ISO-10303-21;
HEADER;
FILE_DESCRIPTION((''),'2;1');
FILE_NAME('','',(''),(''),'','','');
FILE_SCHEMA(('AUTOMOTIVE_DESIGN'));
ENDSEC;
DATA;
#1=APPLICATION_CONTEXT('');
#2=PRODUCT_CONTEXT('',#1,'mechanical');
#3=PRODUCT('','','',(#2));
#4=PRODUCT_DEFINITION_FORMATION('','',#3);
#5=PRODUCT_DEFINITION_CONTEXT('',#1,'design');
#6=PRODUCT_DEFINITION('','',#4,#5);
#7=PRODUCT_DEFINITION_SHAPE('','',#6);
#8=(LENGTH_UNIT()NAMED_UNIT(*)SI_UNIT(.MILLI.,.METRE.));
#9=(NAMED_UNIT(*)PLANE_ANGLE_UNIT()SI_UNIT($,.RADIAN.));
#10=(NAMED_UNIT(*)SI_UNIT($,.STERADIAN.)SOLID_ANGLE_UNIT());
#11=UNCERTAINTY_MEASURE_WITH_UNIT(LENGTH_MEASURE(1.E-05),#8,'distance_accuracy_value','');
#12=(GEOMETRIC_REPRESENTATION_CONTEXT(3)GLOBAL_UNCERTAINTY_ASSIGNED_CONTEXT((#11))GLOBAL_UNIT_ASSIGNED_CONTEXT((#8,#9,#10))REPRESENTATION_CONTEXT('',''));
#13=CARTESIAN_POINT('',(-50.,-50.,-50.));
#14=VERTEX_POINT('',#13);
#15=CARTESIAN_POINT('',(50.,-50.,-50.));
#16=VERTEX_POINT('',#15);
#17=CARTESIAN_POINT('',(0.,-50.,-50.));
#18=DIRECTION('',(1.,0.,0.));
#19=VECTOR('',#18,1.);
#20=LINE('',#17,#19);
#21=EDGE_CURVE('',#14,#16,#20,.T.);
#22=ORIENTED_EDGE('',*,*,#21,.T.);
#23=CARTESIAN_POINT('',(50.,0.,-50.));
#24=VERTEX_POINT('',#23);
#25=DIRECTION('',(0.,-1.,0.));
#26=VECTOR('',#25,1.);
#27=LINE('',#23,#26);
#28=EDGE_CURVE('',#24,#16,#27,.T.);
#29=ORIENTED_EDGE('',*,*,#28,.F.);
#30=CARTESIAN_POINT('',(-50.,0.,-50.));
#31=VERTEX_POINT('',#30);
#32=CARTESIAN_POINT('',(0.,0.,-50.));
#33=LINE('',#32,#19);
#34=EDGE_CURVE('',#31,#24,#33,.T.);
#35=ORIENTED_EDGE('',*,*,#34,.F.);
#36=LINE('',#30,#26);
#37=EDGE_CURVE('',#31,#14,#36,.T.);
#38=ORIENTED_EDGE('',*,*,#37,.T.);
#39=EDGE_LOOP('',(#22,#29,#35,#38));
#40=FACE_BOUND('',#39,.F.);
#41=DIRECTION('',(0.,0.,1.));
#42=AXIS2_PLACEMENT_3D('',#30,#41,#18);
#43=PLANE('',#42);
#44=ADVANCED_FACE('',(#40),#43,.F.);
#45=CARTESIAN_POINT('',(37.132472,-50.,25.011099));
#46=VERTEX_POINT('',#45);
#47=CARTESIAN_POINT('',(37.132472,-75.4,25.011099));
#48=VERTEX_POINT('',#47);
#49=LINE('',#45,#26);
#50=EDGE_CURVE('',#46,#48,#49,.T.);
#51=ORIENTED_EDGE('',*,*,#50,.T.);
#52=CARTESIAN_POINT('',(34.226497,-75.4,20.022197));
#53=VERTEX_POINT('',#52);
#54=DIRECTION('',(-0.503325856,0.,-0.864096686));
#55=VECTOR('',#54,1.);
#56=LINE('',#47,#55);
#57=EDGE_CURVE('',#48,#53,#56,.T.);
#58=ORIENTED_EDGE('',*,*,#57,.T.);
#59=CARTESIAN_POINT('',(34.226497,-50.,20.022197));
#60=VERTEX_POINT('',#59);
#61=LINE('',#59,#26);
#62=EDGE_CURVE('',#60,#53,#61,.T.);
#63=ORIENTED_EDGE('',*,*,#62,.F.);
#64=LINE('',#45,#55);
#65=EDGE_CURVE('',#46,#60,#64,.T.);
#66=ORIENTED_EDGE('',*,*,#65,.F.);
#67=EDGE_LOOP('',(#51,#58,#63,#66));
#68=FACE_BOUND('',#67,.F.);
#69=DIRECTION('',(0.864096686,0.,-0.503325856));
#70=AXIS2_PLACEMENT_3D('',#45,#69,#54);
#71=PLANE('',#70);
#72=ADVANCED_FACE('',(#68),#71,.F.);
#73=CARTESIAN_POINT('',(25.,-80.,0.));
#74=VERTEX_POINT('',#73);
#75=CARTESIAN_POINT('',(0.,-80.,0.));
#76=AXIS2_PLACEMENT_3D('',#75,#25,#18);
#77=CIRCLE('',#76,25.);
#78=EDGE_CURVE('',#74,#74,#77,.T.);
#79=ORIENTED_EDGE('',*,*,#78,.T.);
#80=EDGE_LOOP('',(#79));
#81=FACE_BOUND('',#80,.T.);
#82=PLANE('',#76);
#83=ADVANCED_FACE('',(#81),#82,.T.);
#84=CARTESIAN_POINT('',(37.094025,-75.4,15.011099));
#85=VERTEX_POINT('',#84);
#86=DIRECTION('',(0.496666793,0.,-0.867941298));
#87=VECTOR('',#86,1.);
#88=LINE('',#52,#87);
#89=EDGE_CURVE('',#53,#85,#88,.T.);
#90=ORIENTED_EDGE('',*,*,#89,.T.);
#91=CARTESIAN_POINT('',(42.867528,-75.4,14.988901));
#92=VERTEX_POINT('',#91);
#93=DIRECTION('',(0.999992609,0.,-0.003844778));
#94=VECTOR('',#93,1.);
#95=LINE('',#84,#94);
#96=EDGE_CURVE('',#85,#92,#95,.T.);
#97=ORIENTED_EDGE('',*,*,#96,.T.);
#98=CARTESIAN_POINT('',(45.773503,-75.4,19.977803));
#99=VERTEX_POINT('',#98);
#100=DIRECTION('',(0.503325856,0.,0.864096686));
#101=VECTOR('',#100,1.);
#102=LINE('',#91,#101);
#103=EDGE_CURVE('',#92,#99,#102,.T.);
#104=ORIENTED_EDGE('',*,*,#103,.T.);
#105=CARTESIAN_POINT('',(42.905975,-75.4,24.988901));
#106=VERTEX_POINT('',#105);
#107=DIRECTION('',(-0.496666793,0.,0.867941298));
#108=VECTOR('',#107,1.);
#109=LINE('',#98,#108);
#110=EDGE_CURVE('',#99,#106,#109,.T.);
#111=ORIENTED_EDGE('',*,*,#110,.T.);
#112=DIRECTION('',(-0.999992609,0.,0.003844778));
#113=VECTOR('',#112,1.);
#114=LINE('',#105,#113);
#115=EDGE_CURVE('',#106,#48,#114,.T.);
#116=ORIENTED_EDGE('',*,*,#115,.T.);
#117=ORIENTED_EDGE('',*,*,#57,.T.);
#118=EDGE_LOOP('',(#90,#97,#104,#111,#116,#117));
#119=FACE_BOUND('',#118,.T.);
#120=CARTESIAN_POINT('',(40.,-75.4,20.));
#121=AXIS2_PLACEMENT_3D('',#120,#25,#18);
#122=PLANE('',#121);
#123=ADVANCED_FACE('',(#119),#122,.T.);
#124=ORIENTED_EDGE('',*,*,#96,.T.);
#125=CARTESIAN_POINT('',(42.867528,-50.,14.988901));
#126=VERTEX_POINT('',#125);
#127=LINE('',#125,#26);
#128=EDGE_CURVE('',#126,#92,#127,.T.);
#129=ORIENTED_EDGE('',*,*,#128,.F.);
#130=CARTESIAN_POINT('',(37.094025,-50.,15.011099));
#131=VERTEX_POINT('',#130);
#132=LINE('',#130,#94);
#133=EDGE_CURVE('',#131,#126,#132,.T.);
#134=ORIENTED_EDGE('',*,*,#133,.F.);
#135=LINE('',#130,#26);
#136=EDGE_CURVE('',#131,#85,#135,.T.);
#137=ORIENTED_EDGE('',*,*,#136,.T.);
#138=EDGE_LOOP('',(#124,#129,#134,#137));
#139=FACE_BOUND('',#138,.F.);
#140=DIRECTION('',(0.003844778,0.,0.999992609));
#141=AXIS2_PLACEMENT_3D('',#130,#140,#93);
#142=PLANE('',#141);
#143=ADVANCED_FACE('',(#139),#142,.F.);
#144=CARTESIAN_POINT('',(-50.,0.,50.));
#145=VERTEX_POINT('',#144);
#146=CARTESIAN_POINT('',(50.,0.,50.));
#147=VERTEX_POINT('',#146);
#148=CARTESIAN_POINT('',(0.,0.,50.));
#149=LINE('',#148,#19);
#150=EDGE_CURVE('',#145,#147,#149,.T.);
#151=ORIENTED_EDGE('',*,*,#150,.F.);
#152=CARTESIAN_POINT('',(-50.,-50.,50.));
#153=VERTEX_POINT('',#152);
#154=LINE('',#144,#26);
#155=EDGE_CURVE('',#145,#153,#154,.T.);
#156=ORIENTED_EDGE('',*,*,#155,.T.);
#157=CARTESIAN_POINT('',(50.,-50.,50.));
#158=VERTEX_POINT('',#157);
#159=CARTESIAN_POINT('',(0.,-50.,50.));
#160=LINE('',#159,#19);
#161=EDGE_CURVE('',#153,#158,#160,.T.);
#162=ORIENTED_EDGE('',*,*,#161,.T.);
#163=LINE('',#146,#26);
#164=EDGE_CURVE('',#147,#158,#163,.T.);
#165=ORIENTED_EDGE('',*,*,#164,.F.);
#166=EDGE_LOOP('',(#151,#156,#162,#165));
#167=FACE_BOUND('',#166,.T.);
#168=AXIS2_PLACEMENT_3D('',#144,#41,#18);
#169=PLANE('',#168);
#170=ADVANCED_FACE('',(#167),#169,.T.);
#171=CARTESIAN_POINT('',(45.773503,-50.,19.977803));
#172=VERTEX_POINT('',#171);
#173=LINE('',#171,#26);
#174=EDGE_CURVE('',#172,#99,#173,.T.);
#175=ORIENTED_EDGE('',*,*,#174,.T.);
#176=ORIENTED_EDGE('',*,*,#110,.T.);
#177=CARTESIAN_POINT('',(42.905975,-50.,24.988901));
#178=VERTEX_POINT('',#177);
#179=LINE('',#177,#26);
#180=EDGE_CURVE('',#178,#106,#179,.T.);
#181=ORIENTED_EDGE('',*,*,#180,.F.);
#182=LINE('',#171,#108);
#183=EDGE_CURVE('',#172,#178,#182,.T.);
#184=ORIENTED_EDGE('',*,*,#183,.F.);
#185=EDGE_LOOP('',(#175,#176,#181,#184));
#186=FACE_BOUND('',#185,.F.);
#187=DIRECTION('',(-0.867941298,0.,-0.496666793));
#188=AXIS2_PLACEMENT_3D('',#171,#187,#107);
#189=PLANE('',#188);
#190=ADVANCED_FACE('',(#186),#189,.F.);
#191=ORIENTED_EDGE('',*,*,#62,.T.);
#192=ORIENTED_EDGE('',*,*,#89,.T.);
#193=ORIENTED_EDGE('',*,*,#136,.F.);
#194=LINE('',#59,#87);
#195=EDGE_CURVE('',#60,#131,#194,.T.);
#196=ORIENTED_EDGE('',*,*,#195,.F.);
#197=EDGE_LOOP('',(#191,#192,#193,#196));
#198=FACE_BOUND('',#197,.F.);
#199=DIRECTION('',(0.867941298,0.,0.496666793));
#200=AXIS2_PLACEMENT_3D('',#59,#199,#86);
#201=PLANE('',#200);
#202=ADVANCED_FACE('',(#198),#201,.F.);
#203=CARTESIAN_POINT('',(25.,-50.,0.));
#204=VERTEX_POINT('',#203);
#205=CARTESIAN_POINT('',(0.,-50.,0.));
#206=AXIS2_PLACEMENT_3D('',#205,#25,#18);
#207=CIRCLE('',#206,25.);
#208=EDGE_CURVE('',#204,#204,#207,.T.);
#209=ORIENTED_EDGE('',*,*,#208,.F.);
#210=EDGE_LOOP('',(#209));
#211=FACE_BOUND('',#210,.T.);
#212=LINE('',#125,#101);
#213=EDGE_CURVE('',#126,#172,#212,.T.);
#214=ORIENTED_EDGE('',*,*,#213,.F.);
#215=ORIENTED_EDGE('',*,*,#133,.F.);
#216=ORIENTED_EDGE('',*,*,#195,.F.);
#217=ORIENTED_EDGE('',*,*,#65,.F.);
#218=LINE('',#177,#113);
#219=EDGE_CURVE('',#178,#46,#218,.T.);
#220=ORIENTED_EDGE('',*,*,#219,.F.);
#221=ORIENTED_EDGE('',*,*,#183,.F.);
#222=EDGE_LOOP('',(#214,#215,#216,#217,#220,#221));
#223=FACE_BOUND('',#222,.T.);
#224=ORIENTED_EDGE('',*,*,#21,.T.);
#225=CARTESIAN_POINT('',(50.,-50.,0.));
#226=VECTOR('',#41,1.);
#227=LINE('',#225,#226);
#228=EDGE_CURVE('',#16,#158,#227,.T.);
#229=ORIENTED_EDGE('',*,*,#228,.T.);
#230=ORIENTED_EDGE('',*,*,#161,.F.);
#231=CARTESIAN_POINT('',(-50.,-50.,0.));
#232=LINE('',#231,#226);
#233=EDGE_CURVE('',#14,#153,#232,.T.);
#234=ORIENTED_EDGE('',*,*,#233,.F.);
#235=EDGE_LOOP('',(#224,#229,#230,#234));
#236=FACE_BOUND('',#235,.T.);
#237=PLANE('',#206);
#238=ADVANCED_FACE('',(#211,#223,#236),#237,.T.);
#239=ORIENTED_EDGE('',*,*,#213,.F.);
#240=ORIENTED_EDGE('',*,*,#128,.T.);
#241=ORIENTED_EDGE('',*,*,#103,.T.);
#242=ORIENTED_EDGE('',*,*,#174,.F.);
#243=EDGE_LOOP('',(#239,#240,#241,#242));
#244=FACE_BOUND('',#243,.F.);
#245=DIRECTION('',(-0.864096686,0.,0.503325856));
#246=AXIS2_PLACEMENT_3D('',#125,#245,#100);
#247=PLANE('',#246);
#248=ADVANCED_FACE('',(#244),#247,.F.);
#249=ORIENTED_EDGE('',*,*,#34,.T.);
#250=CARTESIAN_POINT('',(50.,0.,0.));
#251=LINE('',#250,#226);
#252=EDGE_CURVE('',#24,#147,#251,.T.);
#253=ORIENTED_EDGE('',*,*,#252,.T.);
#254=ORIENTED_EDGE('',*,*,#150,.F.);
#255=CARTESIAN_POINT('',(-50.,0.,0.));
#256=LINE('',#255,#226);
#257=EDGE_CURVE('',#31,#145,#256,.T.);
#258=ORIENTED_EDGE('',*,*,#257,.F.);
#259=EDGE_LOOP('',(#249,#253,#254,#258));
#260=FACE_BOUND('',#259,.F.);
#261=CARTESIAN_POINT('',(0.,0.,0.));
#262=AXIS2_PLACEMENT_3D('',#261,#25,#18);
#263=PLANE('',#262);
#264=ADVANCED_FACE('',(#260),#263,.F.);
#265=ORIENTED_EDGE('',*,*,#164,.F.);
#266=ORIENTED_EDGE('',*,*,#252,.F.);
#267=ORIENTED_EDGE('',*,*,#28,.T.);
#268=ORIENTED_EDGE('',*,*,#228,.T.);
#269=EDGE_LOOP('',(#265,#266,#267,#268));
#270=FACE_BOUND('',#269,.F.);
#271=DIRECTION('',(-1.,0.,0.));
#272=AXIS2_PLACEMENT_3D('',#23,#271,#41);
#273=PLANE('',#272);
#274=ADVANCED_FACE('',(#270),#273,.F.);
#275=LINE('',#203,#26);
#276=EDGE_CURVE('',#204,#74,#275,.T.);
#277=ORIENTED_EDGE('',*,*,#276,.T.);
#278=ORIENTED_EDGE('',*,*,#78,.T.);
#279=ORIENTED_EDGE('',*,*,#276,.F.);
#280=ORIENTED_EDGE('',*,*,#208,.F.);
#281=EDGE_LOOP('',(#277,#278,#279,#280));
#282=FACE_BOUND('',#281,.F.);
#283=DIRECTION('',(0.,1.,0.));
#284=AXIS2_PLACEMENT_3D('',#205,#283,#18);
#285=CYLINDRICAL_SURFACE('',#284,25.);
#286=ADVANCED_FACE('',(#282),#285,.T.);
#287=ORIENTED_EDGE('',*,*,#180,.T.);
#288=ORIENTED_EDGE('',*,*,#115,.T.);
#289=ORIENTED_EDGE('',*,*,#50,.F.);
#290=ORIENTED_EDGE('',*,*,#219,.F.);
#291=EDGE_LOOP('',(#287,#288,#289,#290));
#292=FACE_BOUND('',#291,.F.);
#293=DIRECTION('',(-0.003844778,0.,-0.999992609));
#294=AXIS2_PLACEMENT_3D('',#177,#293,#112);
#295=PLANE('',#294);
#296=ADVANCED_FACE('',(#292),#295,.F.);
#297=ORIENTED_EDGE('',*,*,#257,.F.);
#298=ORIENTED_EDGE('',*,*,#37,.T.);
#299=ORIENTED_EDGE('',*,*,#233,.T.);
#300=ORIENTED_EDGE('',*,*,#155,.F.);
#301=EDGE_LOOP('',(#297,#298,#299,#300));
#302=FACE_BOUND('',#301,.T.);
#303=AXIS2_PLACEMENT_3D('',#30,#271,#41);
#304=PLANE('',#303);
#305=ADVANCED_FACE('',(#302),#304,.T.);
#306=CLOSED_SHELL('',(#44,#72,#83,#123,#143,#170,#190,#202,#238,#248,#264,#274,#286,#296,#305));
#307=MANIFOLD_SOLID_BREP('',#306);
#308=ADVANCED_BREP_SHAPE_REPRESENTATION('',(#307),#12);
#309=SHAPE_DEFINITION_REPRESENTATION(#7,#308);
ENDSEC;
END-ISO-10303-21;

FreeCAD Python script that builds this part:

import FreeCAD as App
import Part
import Sketcher
from FreeCAD import Vector


def add_polygon(sketch, points):
    """Adds a closed chain of lines whose ends are joined by coincident constraints."""
    first, n = sketch.GeometryCount, len(points)
    for a, b in zip(points, points[1:] + points[:1]):
        sketch.addGeometry(Part.LineSegment(App.Vector(*a, 0), App.Vector(*b, 0)), False)
    for i in range(n):
        sketch.addConstraint(Sketcher.Constraint("Coincident", first + i, 2, first + (i + 1) % n, 1))

doc = App.newDocument("Part")
body = doc.addObject("PartDesign::Body", "Body")

sketch1 = doc.addObject("Sketcher::SketchObject", "Sketch")
body.addObject(sketch1)
sketch1.AttachmentSupport = (doc.XZ_Plane, [""])
sketch1.MapMode = "FlatFace"
add_polygon(sketch1, [(-50, 50), (-50, -50), (50, -50), (50, 50)])
sketch1.addConstraint([
    Sketcher.Constraint("Vertical", 0),
    Sketcher.Constraint("Horizontal", 1),
    Sketcher.Constraint("Vertical", 2),
    Sketcher.Constraint("Horizontal", 3),
    Sketcher.Constraint("Symmetric", 0, 2, 2, 2, -1, 1),
    Sketcher.Constraint("Equal", 3, 0),
    Sketcher.Constraint("DistanceX", 1, 1, 1, 2, 100.0),
])
pad1 = doc.addObject("PartDesign::Pad", "Pad")
body.addObject(pad1)
pad1.Profile = sketch1
pad1.Length = 50

sketch2 = doc.addObject("Sketcher::SketchObject", "Sketch001")
body.addObject(sketch2)
sketch2.AttachmentSupport = (doc.XZ_Plane, [""])
sketch2.MapMode = "FlatFace"
sketch2.AttachmentOffset = App.Placement(Vector(0, 0, 50), App.Rotation())
sketch2.addGeometry(Part.Circle(Vector(0, 0, 0), Vector(0, 0, 1), 25), False)
sketch2.addConstraint([
    Sketcher.Constraint("Coincident", 0, 3, -1, 1),
    Sketcher.Constraint("Diameter", 0, 50.0),
])
pad2 = doc.addObject("PartDesign::Pad", "Pad001")
body.addObject(pad2)
pad2.Profile = sketch2
pad2.Length = 30

sketch3 = doc.addObject("Sketcher::SketchObject", "Sketch002")
body.addObject(sketch3)
sketch3.AttachmentSupport = (doc.XZ_Plane, [""])
sketch3.MapMode = "FlatFace"
sketch3.AttachmentOffset = App.Placement(Vector(0, 0, 50), App.Rotation())
add_polygon(sketch3, [(46, 20), (43, 25), (37, 25), (34, 20), (37, 15), (43, 15)])
sketch3.addConstraint([
    Sketcher.Constraint("Parallel", 0, 3),
    Sketcher.Constraint("Parallel", 1, 4),
    Sketcher.Constraint("Parallel", 2, 5),
    Sketcher.Constraint("Equal", 0, 1),
    Sketcher.Constraint("Equal", 1, 2),
    Sketcher.Constraint("Equal", 2, 3),
    Sketcher.Constraint("DistanceY", 3, 2, 1, 2, 10.0),
    Sketcher.Constraint("DistanceY", -1, 1, 0, 2, 24.988901),
    Sketcher.Constraint("DistanceY", -1, 1, 1, 2, 25.011099),
    Sketcher.Constraint("DistanceX", 2, 2, 3, 2, 2.867528),
    Sketcher.Constraint("DistanceX", 3, 2, 0, 2, 5.81195),
    Sketcher.Constraint("DistanceX", -1, 1, 0, 2, 42.905975),
])
pad3 = doc.addObject("PartDesign::Pad", "Pad002")
body.addObject(pad3)
pad3.Profile = sketch3
pad3.Length = 25.4

doc.recompute()
